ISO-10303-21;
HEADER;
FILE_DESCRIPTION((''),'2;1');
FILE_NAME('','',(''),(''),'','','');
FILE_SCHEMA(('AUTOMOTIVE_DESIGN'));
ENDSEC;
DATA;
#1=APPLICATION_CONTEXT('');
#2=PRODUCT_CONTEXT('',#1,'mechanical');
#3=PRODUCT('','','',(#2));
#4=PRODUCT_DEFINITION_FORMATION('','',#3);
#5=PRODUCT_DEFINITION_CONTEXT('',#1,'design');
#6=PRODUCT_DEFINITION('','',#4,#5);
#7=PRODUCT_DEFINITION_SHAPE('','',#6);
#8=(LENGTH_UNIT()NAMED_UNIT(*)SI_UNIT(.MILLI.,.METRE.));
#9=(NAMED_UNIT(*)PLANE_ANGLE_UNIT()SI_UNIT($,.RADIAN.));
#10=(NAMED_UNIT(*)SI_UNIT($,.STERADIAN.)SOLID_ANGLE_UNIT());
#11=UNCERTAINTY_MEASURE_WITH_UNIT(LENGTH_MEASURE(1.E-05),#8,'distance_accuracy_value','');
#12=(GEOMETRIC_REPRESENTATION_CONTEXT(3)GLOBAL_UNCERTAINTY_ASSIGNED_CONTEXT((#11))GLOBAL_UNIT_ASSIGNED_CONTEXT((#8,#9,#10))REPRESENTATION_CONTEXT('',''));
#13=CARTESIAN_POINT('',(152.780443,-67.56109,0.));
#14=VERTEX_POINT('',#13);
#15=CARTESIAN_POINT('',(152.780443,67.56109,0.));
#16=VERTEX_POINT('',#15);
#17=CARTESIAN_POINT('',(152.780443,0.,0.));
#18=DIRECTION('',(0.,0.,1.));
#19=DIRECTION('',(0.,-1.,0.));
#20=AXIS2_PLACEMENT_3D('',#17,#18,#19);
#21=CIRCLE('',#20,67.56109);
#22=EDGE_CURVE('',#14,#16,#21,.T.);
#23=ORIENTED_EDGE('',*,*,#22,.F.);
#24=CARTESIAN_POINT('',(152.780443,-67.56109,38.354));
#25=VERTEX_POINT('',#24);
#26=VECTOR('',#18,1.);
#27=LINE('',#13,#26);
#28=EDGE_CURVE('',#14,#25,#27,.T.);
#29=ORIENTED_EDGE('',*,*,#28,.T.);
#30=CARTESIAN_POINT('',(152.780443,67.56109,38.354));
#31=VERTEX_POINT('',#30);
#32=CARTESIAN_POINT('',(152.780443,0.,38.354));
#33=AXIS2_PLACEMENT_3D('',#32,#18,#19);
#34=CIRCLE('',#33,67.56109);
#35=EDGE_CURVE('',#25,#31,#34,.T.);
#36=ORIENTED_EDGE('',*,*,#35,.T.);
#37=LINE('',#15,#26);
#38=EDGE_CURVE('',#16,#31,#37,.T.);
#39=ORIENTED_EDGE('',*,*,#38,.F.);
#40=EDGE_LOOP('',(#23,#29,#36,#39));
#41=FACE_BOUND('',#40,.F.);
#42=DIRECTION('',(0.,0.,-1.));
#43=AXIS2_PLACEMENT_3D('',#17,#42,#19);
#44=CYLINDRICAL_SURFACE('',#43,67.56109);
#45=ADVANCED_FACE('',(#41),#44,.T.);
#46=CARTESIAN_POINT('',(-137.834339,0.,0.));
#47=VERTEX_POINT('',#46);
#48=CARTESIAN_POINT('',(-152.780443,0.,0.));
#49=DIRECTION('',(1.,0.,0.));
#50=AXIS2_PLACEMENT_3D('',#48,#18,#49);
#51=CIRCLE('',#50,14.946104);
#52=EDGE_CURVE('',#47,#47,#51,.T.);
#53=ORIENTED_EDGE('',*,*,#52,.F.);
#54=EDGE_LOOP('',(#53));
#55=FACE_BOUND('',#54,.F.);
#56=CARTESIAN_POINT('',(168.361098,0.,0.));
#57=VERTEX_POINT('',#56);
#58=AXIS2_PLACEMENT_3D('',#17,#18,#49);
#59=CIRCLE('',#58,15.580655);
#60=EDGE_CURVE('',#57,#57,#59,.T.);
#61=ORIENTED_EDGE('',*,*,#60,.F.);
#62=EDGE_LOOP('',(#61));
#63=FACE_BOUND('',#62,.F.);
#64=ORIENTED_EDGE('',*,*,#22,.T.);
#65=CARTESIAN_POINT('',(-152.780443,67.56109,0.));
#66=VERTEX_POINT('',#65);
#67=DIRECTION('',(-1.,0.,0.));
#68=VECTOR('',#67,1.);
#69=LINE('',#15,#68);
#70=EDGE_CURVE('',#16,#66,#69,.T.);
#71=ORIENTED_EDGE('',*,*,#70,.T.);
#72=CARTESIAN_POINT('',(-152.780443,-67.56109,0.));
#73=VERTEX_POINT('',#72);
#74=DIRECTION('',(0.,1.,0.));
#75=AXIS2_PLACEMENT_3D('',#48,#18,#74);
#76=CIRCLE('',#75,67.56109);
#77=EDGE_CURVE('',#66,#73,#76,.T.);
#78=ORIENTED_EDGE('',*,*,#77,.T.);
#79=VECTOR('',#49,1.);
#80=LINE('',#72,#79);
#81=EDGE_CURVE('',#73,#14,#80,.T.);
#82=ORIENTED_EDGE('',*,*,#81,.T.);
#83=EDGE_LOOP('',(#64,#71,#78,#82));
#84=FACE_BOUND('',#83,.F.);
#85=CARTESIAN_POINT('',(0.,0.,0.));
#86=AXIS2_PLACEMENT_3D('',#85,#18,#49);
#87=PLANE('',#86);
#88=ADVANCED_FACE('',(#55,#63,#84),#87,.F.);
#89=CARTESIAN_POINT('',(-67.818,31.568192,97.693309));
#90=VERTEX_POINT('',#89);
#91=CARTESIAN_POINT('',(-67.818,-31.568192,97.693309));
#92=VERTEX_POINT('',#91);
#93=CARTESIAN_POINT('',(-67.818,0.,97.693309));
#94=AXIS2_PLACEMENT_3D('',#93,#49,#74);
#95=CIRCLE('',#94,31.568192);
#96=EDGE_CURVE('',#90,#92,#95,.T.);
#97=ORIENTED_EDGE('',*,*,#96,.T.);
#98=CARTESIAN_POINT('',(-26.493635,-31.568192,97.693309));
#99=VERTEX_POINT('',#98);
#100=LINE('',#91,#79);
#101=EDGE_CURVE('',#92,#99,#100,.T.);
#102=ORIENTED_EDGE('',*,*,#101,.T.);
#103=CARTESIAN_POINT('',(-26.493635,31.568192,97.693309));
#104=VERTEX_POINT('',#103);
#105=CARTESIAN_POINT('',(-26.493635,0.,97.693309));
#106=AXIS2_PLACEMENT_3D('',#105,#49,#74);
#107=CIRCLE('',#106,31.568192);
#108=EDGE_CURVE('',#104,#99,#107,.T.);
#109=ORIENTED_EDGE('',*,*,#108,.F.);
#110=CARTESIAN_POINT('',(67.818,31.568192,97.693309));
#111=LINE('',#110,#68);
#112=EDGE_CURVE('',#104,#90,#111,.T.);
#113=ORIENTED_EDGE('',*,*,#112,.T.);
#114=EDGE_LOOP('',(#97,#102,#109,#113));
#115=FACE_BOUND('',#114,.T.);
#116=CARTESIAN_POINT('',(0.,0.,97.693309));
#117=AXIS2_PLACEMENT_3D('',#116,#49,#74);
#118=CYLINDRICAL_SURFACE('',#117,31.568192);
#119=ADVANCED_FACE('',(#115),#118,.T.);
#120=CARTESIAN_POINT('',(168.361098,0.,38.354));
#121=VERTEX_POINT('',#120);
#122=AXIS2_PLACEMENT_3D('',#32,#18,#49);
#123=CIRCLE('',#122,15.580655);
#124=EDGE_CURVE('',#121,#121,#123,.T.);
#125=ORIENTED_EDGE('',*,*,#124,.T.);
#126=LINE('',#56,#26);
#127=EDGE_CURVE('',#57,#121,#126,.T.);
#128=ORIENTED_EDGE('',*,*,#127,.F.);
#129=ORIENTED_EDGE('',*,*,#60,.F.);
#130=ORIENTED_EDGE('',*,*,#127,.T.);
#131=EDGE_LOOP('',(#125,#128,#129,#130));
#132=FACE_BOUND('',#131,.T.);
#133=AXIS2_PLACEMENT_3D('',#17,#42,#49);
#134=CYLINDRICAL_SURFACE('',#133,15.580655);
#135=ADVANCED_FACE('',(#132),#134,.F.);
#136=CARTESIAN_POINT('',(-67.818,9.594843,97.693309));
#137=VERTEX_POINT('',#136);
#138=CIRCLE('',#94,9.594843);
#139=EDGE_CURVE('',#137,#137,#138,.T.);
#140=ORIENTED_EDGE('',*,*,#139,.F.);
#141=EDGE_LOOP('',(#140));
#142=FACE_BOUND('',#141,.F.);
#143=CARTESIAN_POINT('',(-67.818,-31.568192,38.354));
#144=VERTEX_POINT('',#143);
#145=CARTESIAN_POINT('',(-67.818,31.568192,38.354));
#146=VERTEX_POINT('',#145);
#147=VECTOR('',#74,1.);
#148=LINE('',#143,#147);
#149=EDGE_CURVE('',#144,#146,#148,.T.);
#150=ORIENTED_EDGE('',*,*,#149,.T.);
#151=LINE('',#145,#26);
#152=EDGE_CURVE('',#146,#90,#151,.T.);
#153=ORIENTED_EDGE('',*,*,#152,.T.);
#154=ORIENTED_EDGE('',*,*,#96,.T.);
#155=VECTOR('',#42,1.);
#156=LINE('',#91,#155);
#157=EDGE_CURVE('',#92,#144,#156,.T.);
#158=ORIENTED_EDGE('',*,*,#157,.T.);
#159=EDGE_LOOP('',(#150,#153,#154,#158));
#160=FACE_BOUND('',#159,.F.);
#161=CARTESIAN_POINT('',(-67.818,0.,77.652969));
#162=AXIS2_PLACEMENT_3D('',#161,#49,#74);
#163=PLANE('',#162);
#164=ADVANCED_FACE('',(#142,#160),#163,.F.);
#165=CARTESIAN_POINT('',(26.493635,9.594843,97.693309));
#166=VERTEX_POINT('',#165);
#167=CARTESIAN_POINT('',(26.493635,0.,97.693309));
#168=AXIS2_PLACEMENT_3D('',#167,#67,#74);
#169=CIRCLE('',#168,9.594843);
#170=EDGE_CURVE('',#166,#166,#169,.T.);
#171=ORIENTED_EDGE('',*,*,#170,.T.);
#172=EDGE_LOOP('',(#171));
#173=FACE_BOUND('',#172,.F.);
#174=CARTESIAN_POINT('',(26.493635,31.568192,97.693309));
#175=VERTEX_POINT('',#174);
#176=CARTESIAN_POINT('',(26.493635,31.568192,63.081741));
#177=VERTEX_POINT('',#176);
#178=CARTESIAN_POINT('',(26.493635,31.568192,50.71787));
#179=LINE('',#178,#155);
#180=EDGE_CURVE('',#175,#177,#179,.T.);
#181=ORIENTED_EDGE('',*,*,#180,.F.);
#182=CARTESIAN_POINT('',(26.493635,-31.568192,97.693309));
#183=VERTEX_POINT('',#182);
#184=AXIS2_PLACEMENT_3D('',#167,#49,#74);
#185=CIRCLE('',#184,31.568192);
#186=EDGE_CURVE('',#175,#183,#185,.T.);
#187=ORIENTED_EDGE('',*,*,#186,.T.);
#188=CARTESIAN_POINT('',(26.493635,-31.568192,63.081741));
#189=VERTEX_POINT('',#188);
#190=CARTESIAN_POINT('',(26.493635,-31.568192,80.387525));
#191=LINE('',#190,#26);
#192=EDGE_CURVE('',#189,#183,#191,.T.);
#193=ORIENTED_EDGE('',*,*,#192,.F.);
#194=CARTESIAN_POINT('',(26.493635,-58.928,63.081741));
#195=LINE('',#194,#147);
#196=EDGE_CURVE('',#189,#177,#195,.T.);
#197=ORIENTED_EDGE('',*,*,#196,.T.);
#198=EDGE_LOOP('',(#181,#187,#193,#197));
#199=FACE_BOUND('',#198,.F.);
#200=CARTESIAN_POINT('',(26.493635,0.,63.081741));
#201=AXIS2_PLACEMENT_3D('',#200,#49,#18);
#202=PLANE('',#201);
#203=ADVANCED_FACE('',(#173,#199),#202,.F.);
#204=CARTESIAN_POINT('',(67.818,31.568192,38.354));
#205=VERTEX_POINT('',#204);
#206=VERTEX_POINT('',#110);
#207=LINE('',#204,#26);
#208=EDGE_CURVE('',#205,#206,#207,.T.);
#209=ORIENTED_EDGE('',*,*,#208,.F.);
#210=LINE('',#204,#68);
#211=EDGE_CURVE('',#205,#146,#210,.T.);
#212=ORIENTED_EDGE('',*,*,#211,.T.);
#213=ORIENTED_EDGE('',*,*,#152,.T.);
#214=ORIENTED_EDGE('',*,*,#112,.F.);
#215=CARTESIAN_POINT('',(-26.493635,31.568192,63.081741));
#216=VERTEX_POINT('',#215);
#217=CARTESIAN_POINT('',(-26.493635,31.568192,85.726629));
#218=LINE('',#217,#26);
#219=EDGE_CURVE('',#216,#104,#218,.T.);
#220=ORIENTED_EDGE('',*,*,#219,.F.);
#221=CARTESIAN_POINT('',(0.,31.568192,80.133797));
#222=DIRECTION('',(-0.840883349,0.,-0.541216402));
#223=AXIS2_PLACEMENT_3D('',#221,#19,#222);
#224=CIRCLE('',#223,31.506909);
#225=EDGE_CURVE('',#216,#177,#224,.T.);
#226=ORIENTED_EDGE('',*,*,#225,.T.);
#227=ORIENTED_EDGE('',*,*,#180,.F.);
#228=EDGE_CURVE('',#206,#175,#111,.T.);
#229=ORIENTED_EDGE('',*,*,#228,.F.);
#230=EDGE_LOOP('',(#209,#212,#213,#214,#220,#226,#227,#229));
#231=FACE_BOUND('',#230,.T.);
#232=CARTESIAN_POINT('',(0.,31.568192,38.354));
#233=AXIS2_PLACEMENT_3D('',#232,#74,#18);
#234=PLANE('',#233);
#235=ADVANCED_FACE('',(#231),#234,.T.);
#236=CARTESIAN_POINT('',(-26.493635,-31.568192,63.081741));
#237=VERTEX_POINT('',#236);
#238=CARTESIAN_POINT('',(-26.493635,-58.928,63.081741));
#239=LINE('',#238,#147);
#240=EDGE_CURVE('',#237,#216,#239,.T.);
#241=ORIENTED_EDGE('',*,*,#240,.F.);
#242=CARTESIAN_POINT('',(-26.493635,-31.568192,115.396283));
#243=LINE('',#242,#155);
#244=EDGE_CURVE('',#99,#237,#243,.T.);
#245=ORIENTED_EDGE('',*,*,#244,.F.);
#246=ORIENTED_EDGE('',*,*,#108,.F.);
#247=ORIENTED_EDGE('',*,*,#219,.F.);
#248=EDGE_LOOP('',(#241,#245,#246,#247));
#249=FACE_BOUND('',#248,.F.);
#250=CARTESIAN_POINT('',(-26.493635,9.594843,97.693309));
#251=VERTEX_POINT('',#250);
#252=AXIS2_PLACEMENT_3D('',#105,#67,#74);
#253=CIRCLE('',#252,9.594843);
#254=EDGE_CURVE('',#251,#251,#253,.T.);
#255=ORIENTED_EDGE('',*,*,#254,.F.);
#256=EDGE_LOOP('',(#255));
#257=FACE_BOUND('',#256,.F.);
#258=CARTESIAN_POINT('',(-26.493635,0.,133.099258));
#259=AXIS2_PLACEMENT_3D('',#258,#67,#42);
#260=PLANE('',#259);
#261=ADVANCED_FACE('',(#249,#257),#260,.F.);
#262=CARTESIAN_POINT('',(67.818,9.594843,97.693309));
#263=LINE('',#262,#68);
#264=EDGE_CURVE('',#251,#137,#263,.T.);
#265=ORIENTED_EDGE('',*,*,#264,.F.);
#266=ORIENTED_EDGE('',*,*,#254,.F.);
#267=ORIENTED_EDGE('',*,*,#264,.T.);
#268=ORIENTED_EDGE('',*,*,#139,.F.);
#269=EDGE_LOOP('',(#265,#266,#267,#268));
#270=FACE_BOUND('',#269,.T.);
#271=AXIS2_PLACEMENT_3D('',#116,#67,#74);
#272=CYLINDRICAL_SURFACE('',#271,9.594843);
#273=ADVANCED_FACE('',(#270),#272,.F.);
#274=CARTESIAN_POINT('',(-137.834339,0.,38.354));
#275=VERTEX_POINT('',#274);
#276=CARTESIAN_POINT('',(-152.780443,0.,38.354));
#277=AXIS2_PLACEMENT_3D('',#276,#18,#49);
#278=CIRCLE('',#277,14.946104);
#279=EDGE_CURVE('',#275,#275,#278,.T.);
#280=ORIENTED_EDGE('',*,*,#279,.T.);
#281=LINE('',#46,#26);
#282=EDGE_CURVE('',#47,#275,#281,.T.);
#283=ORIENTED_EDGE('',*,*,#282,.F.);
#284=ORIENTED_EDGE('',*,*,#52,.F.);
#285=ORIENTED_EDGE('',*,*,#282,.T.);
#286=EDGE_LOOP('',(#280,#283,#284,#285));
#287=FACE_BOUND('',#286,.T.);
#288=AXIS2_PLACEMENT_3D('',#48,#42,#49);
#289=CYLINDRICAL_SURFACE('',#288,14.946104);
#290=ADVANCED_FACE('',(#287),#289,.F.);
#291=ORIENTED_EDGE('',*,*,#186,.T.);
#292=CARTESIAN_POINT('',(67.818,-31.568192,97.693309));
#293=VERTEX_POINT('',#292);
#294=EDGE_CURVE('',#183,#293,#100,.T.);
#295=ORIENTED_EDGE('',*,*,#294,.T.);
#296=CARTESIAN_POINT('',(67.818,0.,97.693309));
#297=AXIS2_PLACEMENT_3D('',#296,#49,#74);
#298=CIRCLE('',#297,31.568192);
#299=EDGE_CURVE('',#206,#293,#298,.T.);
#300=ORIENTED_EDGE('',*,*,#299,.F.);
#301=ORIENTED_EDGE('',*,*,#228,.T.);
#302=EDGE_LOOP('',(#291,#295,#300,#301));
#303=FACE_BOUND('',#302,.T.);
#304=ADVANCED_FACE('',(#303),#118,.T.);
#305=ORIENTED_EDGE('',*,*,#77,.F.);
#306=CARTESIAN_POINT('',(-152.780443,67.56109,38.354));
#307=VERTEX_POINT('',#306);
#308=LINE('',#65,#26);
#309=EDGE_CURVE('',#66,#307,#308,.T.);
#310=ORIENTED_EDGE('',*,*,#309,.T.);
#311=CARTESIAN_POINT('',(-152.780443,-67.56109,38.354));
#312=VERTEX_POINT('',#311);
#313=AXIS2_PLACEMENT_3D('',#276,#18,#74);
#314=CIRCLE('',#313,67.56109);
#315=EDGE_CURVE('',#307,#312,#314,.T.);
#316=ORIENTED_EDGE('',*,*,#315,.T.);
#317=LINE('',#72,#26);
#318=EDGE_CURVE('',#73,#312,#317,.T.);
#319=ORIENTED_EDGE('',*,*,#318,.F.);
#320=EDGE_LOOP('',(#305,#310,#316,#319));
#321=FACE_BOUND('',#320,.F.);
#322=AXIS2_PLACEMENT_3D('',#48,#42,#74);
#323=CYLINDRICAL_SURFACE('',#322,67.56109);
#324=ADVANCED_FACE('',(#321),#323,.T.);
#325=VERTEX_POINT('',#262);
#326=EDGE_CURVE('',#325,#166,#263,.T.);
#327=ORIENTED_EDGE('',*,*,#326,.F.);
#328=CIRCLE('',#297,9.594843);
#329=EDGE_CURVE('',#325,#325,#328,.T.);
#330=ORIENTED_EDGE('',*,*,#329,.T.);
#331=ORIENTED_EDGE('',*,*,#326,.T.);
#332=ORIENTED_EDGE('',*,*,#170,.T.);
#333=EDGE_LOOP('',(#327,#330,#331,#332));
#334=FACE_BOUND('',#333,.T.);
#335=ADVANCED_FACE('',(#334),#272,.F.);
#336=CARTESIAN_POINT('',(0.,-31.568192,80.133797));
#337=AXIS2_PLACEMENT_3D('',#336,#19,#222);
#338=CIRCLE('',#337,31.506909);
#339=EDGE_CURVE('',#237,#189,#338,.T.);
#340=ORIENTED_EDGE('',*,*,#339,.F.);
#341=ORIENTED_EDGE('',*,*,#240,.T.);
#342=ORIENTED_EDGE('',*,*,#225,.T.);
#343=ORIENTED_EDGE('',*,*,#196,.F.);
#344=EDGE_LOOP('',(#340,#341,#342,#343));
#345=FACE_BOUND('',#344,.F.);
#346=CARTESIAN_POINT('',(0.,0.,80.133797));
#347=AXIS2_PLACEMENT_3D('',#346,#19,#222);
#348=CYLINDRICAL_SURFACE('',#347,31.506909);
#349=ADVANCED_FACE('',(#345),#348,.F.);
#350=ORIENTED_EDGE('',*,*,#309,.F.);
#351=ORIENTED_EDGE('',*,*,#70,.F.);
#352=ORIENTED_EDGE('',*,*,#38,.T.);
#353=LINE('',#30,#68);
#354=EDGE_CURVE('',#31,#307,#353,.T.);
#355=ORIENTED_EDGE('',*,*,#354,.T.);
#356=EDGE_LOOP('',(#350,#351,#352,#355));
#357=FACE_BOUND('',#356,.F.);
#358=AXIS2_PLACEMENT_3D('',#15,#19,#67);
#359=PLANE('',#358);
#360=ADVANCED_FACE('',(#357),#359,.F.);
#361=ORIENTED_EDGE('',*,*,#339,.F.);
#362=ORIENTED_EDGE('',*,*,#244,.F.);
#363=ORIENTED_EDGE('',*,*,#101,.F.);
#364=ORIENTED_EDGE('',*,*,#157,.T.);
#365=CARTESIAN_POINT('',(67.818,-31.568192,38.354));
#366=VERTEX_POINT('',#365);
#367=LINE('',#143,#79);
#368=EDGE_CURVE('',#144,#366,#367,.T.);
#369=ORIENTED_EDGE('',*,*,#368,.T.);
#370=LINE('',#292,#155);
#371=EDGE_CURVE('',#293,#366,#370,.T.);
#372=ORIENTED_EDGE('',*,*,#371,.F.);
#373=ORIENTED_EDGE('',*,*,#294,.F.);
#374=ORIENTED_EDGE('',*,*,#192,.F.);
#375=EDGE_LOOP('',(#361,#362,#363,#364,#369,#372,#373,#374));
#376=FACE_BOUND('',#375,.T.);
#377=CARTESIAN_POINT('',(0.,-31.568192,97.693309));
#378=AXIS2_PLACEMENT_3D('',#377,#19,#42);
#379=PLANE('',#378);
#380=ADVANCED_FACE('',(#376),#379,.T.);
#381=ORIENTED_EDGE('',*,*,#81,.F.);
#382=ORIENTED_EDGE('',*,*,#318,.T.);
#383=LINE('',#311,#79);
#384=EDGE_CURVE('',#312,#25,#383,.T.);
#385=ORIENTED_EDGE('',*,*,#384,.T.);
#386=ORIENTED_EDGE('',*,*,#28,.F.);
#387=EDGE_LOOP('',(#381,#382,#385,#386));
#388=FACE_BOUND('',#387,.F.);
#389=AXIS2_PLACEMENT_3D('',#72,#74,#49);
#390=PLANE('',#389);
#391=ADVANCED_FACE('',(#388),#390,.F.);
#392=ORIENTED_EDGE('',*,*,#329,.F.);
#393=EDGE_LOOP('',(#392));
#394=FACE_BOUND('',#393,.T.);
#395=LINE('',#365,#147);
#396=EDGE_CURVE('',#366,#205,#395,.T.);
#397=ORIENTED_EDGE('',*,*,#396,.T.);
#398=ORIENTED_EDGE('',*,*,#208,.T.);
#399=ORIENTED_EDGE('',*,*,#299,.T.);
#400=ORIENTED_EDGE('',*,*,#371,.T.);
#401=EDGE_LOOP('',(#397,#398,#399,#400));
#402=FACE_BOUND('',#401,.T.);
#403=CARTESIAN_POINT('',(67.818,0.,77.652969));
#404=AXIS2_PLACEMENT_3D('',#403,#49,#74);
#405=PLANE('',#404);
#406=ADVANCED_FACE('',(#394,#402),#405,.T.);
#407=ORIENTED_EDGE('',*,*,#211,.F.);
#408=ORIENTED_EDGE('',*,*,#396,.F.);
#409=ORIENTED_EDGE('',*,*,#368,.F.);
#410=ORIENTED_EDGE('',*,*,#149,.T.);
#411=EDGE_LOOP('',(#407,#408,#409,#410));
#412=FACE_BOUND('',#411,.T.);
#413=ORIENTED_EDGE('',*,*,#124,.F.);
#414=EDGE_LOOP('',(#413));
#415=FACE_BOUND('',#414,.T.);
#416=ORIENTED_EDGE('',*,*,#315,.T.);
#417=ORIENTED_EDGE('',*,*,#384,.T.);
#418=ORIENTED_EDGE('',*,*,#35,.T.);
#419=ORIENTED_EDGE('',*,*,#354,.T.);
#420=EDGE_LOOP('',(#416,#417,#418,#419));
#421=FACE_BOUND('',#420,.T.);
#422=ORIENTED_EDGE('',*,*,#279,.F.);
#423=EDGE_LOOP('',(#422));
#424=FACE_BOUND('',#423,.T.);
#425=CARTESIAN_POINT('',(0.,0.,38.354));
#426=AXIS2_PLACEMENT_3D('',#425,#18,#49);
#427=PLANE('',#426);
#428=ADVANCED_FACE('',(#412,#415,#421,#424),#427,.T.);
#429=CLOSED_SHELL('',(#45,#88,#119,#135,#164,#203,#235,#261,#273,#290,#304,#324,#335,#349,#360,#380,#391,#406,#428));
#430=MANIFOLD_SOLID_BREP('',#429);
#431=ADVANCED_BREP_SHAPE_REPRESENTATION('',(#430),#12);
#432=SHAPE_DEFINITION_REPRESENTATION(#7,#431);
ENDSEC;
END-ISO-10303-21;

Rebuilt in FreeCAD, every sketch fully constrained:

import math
import FreeCAD as App
import Part
import Sketcher
from FreeCAD import Vector
Q = App.Units.Quantity

doc = App.newDocument("Part")
body = doc.addObject("PartDesign::Body", "Body")

sketch1 = body.newObject("Sketcher::SketchObject", "Sketch")
sketch1.AttachmentSupport = (doc.getObject("XY_Plane"), [""])
sketch1.MapMode = "FlatFace"
sketch1.addGeometry(Part.ArcOfCircle(Part.Circle(Vector(152.780443, 0, 0), Vector(0, 0, 1), 67.56109), math.radians(-90), math.radians(90)), False)
sketch1.addGeometry(Part.LineSegment(Vector(152.780443, 67.56109, 0), Vector(-152.780443, 67.56109, 0)), False)
sketch1.addGeometry(Part.ArcOfCircle(Part.Circle(Vector(-152.780443, 0, 0), Vector(0, 0, 1), 67.56109), math.radians(90), math.radians(270)), False)
sketch1.addGeometry(Part.LineSegment(Vector(-152.780443, -67.56109, 0), Vector(152.780443, -67.56109, 0)), False)
sketch1.addGeometry(Part.Circle(Vector(-152.780443, 0, 0), Vector(0, 0, 1), 14.946104), False)
sketch1.addGeometry(Part.Circle(Vector(152.780443, 0, 0), Vector(0, 0, 1), 15.580655), False)
sketch1.addConstraint(Sketcher.Constraint("Tangent", 0, 2, 1, 1))
sketch1.addConstraint(Sketcher.Constraint("Tangent", 1, 2, 2, 1))
sketch1.addConstraint(Sketcher.Constraint("Tangent", 2, 2, 3, 1))
sketch1.addConstraint(Sketcher.Constraint("Tangent", 3, 2, 0, 1))
sketch1.addConstraint(Sketcher.Constraint("Horizontal", 1))
sketch1.addConstraint(Sketcher.Constraint("Horizontal", 3))
sketch1.addConstraint(Sketcher.Constraint("Coincident", 4, 3, 2, 3))
sketch1.addConstraint(Sketcher.Constraint("Coincident", 5, 3, 0, 3))
sketch1.addConstraint(Sketcher.Constraint("Symmetric", 0, 3, 2, 3, -1, 1))
sketch1.addConstraint(Sketcher.Constraint("Diameter", 4, Q("29.892208 mm")))
sketch1.addConstraint(Sketcher.Constraint("Diameter", 5, Q("31.16131 mm")))
sketch1.addConstraint(Sketcher.Constraint("Radius", 0, Q("67.56109 mm")))
sketch1.addConstraint(Sketcher.Constraint("DistanceX", 1, 2, 1, 1, Q("305.560886 mm")))
pad1 = body.newObject("PartDesign::Pad", "Pad")
pad1.Profile = sketch1
pad1.Length = Q("1.51 in")

sketch2 = body.newObject("Sketcher::SketchObject", "Sketch001")
sketch2.AttachmentSupport = (doc.getObject("YZ_Plane"), [""])
sketch2.MapMode = "FlatFace"
sketch2.addGeometry(Part.ArcOfCircle(Part.Circle(Vector(0, 97.693309, 0), Vector(0, 0, 1), 31.568192), math.radians(0), math.radians(180)), False)
sketch2.addGeometry(Part.LineSegment(Vector(-31.568192, 97.693309, 0), Vector(-31.568192, 38.354, 0)), False)
sketch2.addGeometry(Part.LineSegment(Vector(-31.568192, 38.354, 0), Vector(31.568192, 38.354, 0)), False)
sketch2.addGeometry(Part.LineSegment(Vector(31.568192, 38.354, 0), Vector(31.568192, 97.693309, 0)), False)
sketch2.addGeometry(Part.Circle(Vector(0, 97.693309, 0), Vector(0, 0, 1), 9.594843), False)
sketch2.addConstraint(Sketcher.Constraint("Tangent", 0, 2, 1, 1))
sketch2.addConstraint(Sketcher.Constraint("Coincident", 1, 2, 2, 1))
sketch2.addConstraint(Sketcher.Constraint("Coincident", 2, 2, 3, 1))
sketch2.addConstraint(Sketcher.Constraint("Tangent", 3, 2, 0, 1))
sketch2.addConstraint(Sketcher.Constraint("Vertical", 1))
sketch2.addConstraint(Sketcher.Constraint("Horizontal", 2))
sketch2.addConstraint(Sketcher.Constraint("Vertical", 3))
sketch2.addConstraint(Sketcher.Constraint("Coincident", 4, 3, 0, 3))
sketch2.addConstraint(Sketcher.Constraint("PointOnObject", 0, 3, -2))
sketch2.addConstraint(Sketcher.Constraint("DistanceY", -1, 1, 1, 2, Q("1.51 in")))
sketch2.addConstraint(Sketcher.Constraint("Radius", 0, Q("31.568192 mm")))
sketch2.addConstraint(Sketcher.Constraint("Diameter", 4, Q("19.189686 mm")))
sketch2.addConstraint(Sketcher.Constraint("DistanceY", 1, 2, 1, 1, Q("59.339309 mm")))
pad2 = body.newObject("PartDesign::Pad", "Pad001")
pad2.Profile = sketch2
pad2.Length = Q("5.34 in")
pad2.Midplane = True

sketch3 = body.newObject("Sketcher::SketchObject", "Sketch002")
sketch3.AttachmentSupport = (doc.getObject("XZ_Plane"), [""])
sketch3.MapMode = "FlatFace"
sketch3.addGeometry(Part.LineSegment(Vector(26.493635, 63.081741, 0), Vector(26.493635, 133.099258, 0)), False)
sketch3.addGeometry(Part.LineSegment(Vector(26.493635, 133.099258, 0), Vector(-26.493635, 133.099258, 0)), False)
sketch3.addGeometry(Part.LineSegment(Vector(-26.493635, 133.099258, 0), Vector(-26.493635, 63.081741, 0)), False)
sketch3.addGeometry(Part.ArcOfCircle(Part.Circle(Vector(0, 80.133797, 0), Vector(0, 0, 1), 31.506909), math.radians(-147.233517), math.radians(-32.766483)), False)
sketch3.addConstraint(Sketcher.Constraint("Coincident", 0, 2, 1, 1))
sketch3.addConstraint(Sketcher.Constraint("Coincident", 1, 2, 2, 1))
sketch3.addConstraint(Sketcher.Constraint("Coincident", 2, 2, 3, 1))
sketch3.addConstraint(Sketcher.Constraint("Coincident", 3, 2, 0, 1))
sketch3.addConstraint(Sketcher.Constraint("Vertical", 0))
sketch3.addConstraint(Sketcher.Constraint("Horizontal", 1))
sketch3.addConstraint(Sketcher.Constraint("Vertical", 2))
sketch3.addConstraint(Sketcher.Constraint("Symmetric", 2, 2, 3, 2, -2))
sketch3.addConstraint(Sketcher.Constraint("Radius", 3, Q("31.506909 mm")))
sketch3.addConstraint(Sketcher.Constraint("DistanceX", 1, 2, 1, 1, Q("52.98727 mm")))
sketch3.addConstraint(Sketcher.Constraint("DistanceY", 0, 1, 0, 2, Q("70.017517 mm")))
sketch3.addConstraint(Sketcher.Constraint("DistanceY", -1, 1, 0, 2, Q("133.099258 mm")))
pocket1 = body.newObject("PartDesign::Pocket", "Pocket")
pocket1.Profile = sketch3
pocket1.Length = Q("4.64 in")
pocket1.Midplane = True

doc.recompute()
